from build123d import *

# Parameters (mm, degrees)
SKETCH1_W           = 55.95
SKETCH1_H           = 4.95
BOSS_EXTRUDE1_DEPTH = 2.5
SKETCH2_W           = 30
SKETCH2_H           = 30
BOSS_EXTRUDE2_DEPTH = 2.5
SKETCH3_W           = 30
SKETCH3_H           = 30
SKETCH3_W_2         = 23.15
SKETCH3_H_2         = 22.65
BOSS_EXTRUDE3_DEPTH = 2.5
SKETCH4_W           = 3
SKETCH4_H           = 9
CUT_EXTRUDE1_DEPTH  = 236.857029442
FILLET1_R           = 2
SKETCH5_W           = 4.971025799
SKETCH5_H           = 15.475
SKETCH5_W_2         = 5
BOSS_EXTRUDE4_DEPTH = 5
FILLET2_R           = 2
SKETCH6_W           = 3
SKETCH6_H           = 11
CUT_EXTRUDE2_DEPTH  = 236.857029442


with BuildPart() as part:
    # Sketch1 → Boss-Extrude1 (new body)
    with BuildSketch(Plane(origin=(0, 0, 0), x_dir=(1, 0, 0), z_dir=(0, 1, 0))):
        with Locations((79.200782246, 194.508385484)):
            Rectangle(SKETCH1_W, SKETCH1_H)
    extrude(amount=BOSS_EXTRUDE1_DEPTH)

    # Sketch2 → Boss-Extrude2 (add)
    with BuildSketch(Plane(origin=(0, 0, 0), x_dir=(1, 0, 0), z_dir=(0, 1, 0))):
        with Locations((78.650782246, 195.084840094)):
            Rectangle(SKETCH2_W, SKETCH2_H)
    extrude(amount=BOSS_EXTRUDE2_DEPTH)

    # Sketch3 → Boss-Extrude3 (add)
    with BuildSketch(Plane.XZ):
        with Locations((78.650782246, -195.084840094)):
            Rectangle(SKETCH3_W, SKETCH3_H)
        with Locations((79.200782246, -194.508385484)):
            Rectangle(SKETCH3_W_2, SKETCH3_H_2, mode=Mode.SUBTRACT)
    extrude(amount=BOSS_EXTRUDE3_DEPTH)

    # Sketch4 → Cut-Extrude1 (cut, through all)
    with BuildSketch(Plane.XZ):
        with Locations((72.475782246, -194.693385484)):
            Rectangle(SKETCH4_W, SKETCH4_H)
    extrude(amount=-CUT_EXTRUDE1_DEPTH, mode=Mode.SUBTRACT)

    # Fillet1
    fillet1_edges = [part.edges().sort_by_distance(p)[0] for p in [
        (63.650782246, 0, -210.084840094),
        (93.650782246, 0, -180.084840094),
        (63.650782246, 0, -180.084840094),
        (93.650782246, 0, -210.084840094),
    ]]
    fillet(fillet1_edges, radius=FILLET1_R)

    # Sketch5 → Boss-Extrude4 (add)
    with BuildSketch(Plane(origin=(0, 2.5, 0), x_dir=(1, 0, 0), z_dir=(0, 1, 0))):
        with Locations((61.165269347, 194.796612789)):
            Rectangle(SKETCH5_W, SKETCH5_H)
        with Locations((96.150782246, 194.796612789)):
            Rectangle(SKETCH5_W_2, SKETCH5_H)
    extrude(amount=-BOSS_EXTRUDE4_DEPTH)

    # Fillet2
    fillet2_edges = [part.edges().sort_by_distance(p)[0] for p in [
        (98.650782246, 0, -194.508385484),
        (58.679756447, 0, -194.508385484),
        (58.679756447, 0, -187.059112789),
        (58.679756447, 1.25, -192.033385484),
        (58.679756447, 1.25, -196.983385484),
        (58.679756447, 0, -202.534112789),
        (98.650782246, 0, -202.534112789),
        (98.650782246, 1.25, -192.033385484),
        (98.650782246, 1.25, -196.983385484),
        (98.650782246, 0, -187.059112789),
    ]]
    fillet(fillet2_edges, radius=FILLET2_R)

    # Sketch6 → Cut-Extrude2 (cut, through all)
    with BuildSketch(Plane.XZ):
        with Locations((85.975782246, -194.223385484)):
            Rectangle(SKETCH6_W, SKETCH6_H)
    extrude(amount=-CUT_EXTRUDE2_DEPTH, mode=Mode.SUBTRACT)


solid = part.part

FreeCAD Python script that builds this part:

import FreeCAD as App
import Part
import Sketcher
Q = App.Units.Quantity


def edges_at(feature, points):
    """Names of the edges that pass closest to the given points."""
    edges = feature.Shape.Edges
    near = lambda p: min(range(len(edges)), key=lambda i: edges[i].distToShape(Part.Vertex(*p))[0])
    return sorted({f"Edge{near(p) + 1}" for p in points})

doc = App.newDocument("Part")
body = doc.addObject("PartDesign::Body", "Body")

# Sketch on XZ plane
sketch1 = body.newObject("Sketcher::SketchObject", "Sketch")
sketch1.AttachmentSupport = (doc.getObject("XZ_Plane"), [""])
sketch1.MapMode = "FlatFace"
sketch1.addGeometry(Part.LineSegment(App.Vector(51.2, -197, 0), App.Vector(51.2, -192, 0)), False)
sketch1.addGeometry(Part.LineSegment(App.Vector(51.2, -192, 0), App.Vector(107.2, -192, 0)), False)
sketch1.addGeometry(Part.LineSegment(App.Vector(107.2, -192, 0), App.Vector(107.2, -197, 0)), False)
sketch1.addGeometry(Part.LineSegment(App.Vector(107.2, -197, 0), App.Vector(51.2, -197, 0)), False)
sketch1.addConstraint(Sketcher.Constraint("Coincident", 0, 2, 1, 1))
sketch1.addConstraint(Sketcher.Constraint("Coincident", 1, 2, 2, 1))
sketch1.addConstraint(Sketcher.Constraint("Coincident", 2, 2, 3, 1))
sketch1.addConstraint(Sketcher.Constraint("Coincident", 3, 2, 0, 1))
sketch1.addConstraint(Sketcher.Constraint("Vertical", 0))
sketch1.addConstraint(Sketcher.Constraint("Horizontal", 1))
sketch1.addConstraint(Sketcher.Constraint("Vertical", 2))
sketch1.addConstraint(Sketcher.Constraint("Horizontal", 3))
sketch1.addConstraint(Sketcher.Constraint("DistanceX", 1, 1, 1, 2, Q("55.95 mm")))
sketch1.addConstraint(Sketcher.Constraint("DistanceY", 0, 1, 0, 2, Q("4.95 mm")))
sketch1.addConstraint(Sketcher.Constraint("DistanceX", -1, 1, 0, 2, Q("51.225782 mm")))
sketch1.addConstraint(Sketcher.Constraint("DistanceY", 0, 2, -1, 1, Q("192.033385 mm")))
pad1 = body.newObject("PartDesign::Pad", "Pad")
pad1.Profile = sketch1
pad1.Length = 2.5
pad1.Reversed = True

# Sketch on XZ plane
sketch2 = body.newObject("Sketcher::SketchObject", "Sketch001")
sketch2.AttachmentSupport = (doc.getObject("XZ_Plane"), [""])
sketch2.MapMode = "FlatFace"
sketch2.addGeometry(Part.LineSegment(App.Vector(64, -210, 0), App.Vector(64, -180, 0)), False)
sketch2.addGeometry(Part.LineSegment(App.Vector(64, -180, 0), App.Vector(94, -180, 0)), False)
sketch2.addGeometry(Part.LineSegment(App.Vector(94, -180, 0), App.Vector(94, -210, 0)), False)
sketch2.addGeometry(Part.LineSegment(App.Vector(94, -210, 0), App.Vector(64, -210, 0)), False)
sketch2.addConstraint(Sketcher.Constraint("Coincident", 0, 2, 1, 1))
sketch2.addConstraint(Sketcher.Constraint("Coincident", 1, 2, 2, 1))
sketch2.addConstraint(Sketcher.Constraint("Coincident", 2, 2, 3, 1))
sketch2.addConstraint(Sketcher.Constraint("Coincident", 3, 2, 0, 1))
sketch2.addConstraint(Sketcher.Constraint("Vertical", 0))
sketch2.addConstraint(Sketcher.Constraint("Horizontal", 1))
sketch2.addConstraint(Sketcher.Constraint("Vertical", 2))
sketch2.addConstraint(Sketcher.Constraint("Horizontal", 3))
sketch2.addConstraint(Sketcher.Constraint("Equal", 3, 0))
sketch2.addConstraint(Sketcher.Constraint("DistanceX", 1, 1, 1, 2, Q("30 mm")))
sketch2.addConstraint(Sketcher.Constraint("DistanceY", 0, 2, -1, 1, Q("180.08484 mm")))
sketch2.addConstraint(Sketcher.Constraint("DistanceX", -1, 1, 0, 2, Q("63.650782 mm")))
pad2 = body.newObject("PartDesign::Pad", "Pad001")
pad2.Profile = sketch2
pad2.Length = 2.5
pad2.Reversed = True

# Sketch on XZ plane
sketch3 = body.newObject("Sketcher::SketchObject", "Sketch002")
sketch3.AttachmentSupport = (doc.getObject("XZ_Plane"), [""])
sketch3.MapMode = "FlatFace"
sketch3.addGeometry(Part.LineSegment(App.Vector(64, -180, 0), App.Vector(64, -210, 0)), False)
sketch3.addGeometry(Part.LineSegment(App.Vector(64, -210, 0), App.Vector(94, -210, 0)), False)
sketch3.addGeometry(Part.LineSegment(App.Vector(94, -210, 0), App.Vector(94, -180, 0)), False)
sketch3.addGeometry(Part.LineSegment(App.Vector(94, -180, 0), App.Vector(64, -180, 0)), False)
sketch3.addGeometry(Part.LineSegment(App.Vector(91, -206, 0), App.Vector(68, -206, 0)), False)
sketch3.addGeometry(Part.LineSegment(App.Vector(68, -206, 0), App.Vector(68, -183, 0)), False)
sketch3.addGeometry(Part.LineSegment(App.Vector(68, -183, 0), App.Vector(91, -183, 0)), False)
sketch3.addGeometry(Part.LineSegment(App.Vector(91, -183, 0), App.Vector(91, -206, 0)), False)
sketch3.addConstraint(Sketcher.Constraint("Coincident", 0, 2, 1, 1))
sketch3.addConstraint(Sketcher.Constraint("Coincident", 1, 2, 2, 1))
sketch3.addConstraint(Sketcher.Constraint("Coincident", 2, 2, 3, 1))
sketch3.addConstraint(Sketcher.Constraint("Coincident", 3, 2, 0, 1))
sketch3.addConstraint(Sketcher.Constraint("Coincident", 4, 2, 5, 1))
sketch3.addConstraint(Sketcher.Constraint("Coincident", 5, 2, 6, 1))
sketch3.addConstraint(Sketcher.Constraint("Coincident", 6, 2, 7, 1))
sketch3.addConstraint(Sketcher.Constraint("Coincident", 7, 2, 4, 1))
sketch3.addConstraint(Sketcher.Constraint("Vertical", 0))
sketch3.addConstraint(Sketcher.Constraint("Horizontal", 1))
sketch3.addConstraint(Sketcher.Constraint("Vertical", 2))
sketch3.addConstraint(Sketcher.Constraint("Horizontal", 3))
sketch3.addConstraint(Sketcher.Constraint("Horizontal", 4))
sketch3.addConstraint(Sketcher.Constraint("Vertical", 5))
sketch3.addConstraint(Sketcher.Constraint("Horizontal", 6))
sketch3.addConstraint(Sketcher.Constraint("Vertical", 7))
sketch3.addConstraint(Sketcher.Constraint("Equal", 3, 0))
sketch3.addConstraint(Sketcher.Constraint("DistanceX", 1, 1, 1, 2, Q("30 mm")))
sketch3.addConstraint(Sketcher.Constraint("DistanceX", 4, 2, 4, 1, Q("23.15 mm")))
sketch3.addConstraint(Sketcher.Constraint("DistanceY", 5, 1, 5, 2, Q("22.65 mm")))
sketch3.addConstraint(Sketcher.Constraint("DistanceX", 0, 2, 4, 2, Q("3.975 mm")))
sketch3.addConstraint(Sketcher.Constraint("DistanceY", 0, 2, -1, 1, Q("210.08484 mm")))
sketch3.addConstraint(Sketcher.Constraint("DistanceX", -1, 1, 0, 2, Q("63.650782 mm")))
sketch3.addConstraint(Sketcher.Constraint("DistanceY", 4, 2, -1, 1, Q("205.833385 mm")))
pad3 = body.newObject("PartDesign::Pad", "Pad002")
pad3.Profile = sketch3
pad3.Length = 2.5

# Sketch on XZ plane
sketch4 = body.newObject("Sketcher::SketchObject", "Sketch003")
sketch4.AttachmentSupport = (doc.getObject("XZ_Plane"), [""])
sketch4.MapMode = "FlatFace"
sketch4.addGeometry(Part.LineSegment(App.Vector(71, -190.2, 0), App.Vector(71, -199.2, 0)), False)
sketch4.addGeometry(Part.LineSegment(App.Vector(71, -199.2, 0), App.Vector(74, -199.2, 0)), False)
sketch4.addGeometry(Part.LineSegment(App.Vector(74, -199.2, 0), App.Vector(74, -190.2, 0)), False)
sketch4.addGeometry(Part.LineSegment(App.Vector(74, -190.2, 0), App.Vector(71, -190.2, 0)), False)
sketch4.addConstraint(Sketcher.Constraint("Coincident", 0, 2, 1, 1))
sketch4.addConstraint(Sketcher.Constraint("Coincident", 1, 2, 2, 1))
sketch4.addConstraint(Sketcher.Constraint("Coincident", 2, 2, 3, 1))
sketch4.addConstraint(Sketcher.Constraint("Coincident", 3, 2, 0, 1))
sketch4.addConstraint(Sketcher.Constraint("Vertical", 0))
sketch4.addConstraint(Sketcher.Constraint("Horizontal", 1))
sketch4.addConstraint(Sketcher.Constraint("Vertical", 2))
sketch4.addConstraint(Sketcher.Constraint("Horizontal", 3))
sketch4.addConstraint(Sketcher.Constraint("DistanceX", 1, 1, 1, 2, Q("3 mm")))
sketch4.addConstraint(Sketcher.Constraint("DistanceY", 0, 2, 0, 1, Q("9 mm")))
sketch4.addConstraint(Sketcher.Constraint("DistanceX", -1, 1, 0, 2, Q("70.975782 mm")))
sketch4.addConstraint(Sketcher.Constraint("DistanceY", 0, 2, -1, 1, Q("199.193385 mm")))
pocket1 = body.newObject("PartDesign::Pocket", "Pocket")
pocket1.Profile = sketch4
pocket1.Type = "ThroughAll"
doc.recompute()

fillet = body.newObject("PartDesign::Fillet", "Fillet")
fillet.Base = (pocket1, edges_at(pocket1, [
    (63.651, 0, -210.085),
    (93.651, 0, -180.085),
    (63.651, 0, -180.085),
    (93.651, 0, -210.085),
]))
fillet.Radius = 2

# Sketch on XZ plane
sketch5 = body.newObject("Sketcher::SketchObject", "Sketch004")
sketch5.AttachmentSupport = (doc.getObject("XZ_Plane"), [""])
sketch5.MapMode = "FlatFace"
sketch5.AttachmentOffset = App.Placement(App.Vector(0, 0, -2.5), App.Rotation())
sketch5.addGeometry(Part.LineSegment(App.Vector(58.7, -202.5, 0), App.Vector(58.7, -187.1, 0)), False)
sketch5.addGeometry(Part.LineSegment(App.Vector(58.7, -187.1, 0), App.Vector(63.7, -187.1, 0)), False)
sketch5.addGeometry(Part.LineSegment(App.Vector(63.7, -187.1, 0), App.Vector(63.7, -202.5, 0)), False)
sketch5.addGeometry(Part.LineSegment(App.Vector(63.7, -202.5, 0), App.Vector(58.7, -202.5, 0)), False)
sketch5.addGeometry(Part.LineSegment(App.Vector(93.7, -202.5, 0), App.Vector(93.7, -187.1, 0)), False)
sketch5.addGeometry(Part.LineSegment(App.Vector(93.7, -187.1, 0), App.Vector(98.7, -187.1, 0)), False)
sketch5.addGeometry(Part.LineSegment(App.Vector(98.7, -187.1, 0), App.Vector(98.7, -202.5, 0)), False)
sketch5.addGeometry(Part.LineSegment(App.Vector(98.7, -202.5, 0), App.Vector(93.7, -202.5, 0)), False)
sketch5.addConstraint(Sketcher.Constraint("Coincident", 0, 2, 1, 1))
sketch5.addConstraint(Sketcher.Constraint("Coincident", 1, 2, 2, 1))
sketch5.addConstraint(Sketcher.Constraint("Coincident", 2, 2, 3, 1))
sketch5.addConstraint(Sketcher.Constraint("Coincident", 3, 2, 0, 1))
sketch5.addConstraint(Sketcher.Constraint("Coincident", 4, 2, 5, 1))
sketch5.addConstraint(Sketcher.Constraint("Coincident", 5, 2, 6, 1))
sketch5.addConstraint(Sketcher.Constraint("Coincident", 6, 2, 7, 1))
sketch5.addConstraint(Sketcher.Constraint("Coincident", 7, 2, 4, 1))
sketch5.addConstraint(Sketcher.Constraint("Vertical", 0))
sketch5.addConstraint(Sketcher.Constraint("Horizontal", 1))
sketch5.addConstraint(Sketcher.Constraint("Vertical", 2))
sketch5.addConstraint(Sketcher.Constraint("Horizontal", 3))
sketch5.addConstraint(Sketcher.Constraint("Vertical", 4))
sketch5.addConstraint(Sketcher.Constraint("Horizontal", 5))
sketch5.addConstraint(Sketcher.Constraint("Vertical", 6))
sketch5.addConstraint(Sketcher.Constraint("Horizontal", 7))
sketch5.addConstraint(Sketcher.Constraint("Horizontal", 1, 2, 4, 2))
sketch5.addConstraint(Sketcher.Constraint("Horizontal", 3, 2, 6, 2))
sketch5.addConstraint(Sketcher.Constraint("DistanceX", 5, 1, 5, 2, Q("5 mm")))
sketch5.addConstraint(Sketcher.Constraint("DistanceX", 1, 2, 4, 2, Q("30 mm")))
sketch5.addConstraint(Sketcher.Constraint("DistanceY", 0, 1, 0, 2, Q("15.475 mm")))
sketch5.addConstraint(Sketcher.Constraint("DistanceX", 1, 1, 1, 2, Q("4.971026 mm")))
sketch5.addConstraint(Sketcher.Constraint("DistanceX", -1, 1, 0, 2, Q("58.679756 mm")))
sketch5.addConstraint(Sketcher.Constraint("DistanceY", 0, 2, -1, 1, Q("187.059113 mm")))
pad4 = body.newObject("PartDesign::Pad", "Pad003")
pad4.Profile = sketch5
pad4.Length = 5
doc.recompute()

fillet2 = body.newObject("PartDesign::Fillet", "Fillet001")
fillet2.Base = (pad4, edges_at(pad4, [
    (98.651, 0, -194.508),
    (58.68, 0, -194.508),
    (58.68, 0, -187.059),
    (58.68, 1.25, -192.033),
    (58.68, 1.25, -196.983),
    (58.68, 0, -202.534),
    (98.651, 0, -202.534),
    (98.651, 1.25, -192.033),
    (98.651, 1.25, -196.983),
    (98.651, 0, -187.059),
]))
fillet2.Radius = 2

# Sketch on XZ plane
sketch6 = body.newObject("Sketcher::SketchObject", "Sketch005")
sketch6.AttachmentSupport = (doc.getObject("XZ_Plane"), [""])
sketch6.MapMode = "FlatFace"
sketch6.addGeometry(Part.LineSegment(App.Vector(84.5, -188.7, 0), App.Vector(84.5, -199.7, 0)), False)
sketch6.addGeometry(Part.LineSegment(App.Vector(84.5, -199.7, 0), App.Vector(87.5, -199.7, 0)), False)
sketch6.addGeometry(Part.LineSegment(App.Vector(87.5, -199.7, 0), App.Vector(87.5, -188.7, 0)), False)
sketch6.addGeometry(Part.LineSegment(App.Vector(87.5, -188.7, 0), App.Vector(84.5, -188.7, 0)), False)
sketch6.addConstraint(Sketcher.Constraint("Coincident", 0, 2, 1, 1))
sketch6.addConstraint(Sketcher.Constraint("Coincident", 1, 2, 2, 1))
sketch6.addConstraint(Sketcher.Constraint("Coincident", 2, 2, 3, 1))
sketch6.addConstraint(Sketcher.Constraint("Coincident", 3, 2, 0, 1))
sketch6.addConstraint(Sketcher.Constraint("Vertical", 0))
sketch6.addConstraint(Sketcher.Constraint("Horizontal", 1))
sketch6.addConstraint(Sketcher.Constraint("Vertical", 2))
sketch6.addConstraint(Sketcher.Constraint("Horizontal", 3))
sketch6.addConstraint(Sketcher.Constraint("DistanceX", 1, 1, 1, 2, Q("3 mm")))
sketch6.addConstraint(Sketcher.Constraint("DistanceY", 0, 2, 0, 1, Q("11 mm")))
sketch6.addConstraint(Sketcher.Constraint("DistanceX", -1, 1, 0, 2, Q("84.475782 mm")))
sketch6.addConstraint(Sketcher.Constraint("DistanceY", 0, 2, -1, 1, Q("199.723385 mm")))
pocket2 = body.newObject("PartDesign::Pocket", "Pocket001")
pocket2.Profile = sketch6
pocket2.Type = "ThroughAll"

doc.recompute()
